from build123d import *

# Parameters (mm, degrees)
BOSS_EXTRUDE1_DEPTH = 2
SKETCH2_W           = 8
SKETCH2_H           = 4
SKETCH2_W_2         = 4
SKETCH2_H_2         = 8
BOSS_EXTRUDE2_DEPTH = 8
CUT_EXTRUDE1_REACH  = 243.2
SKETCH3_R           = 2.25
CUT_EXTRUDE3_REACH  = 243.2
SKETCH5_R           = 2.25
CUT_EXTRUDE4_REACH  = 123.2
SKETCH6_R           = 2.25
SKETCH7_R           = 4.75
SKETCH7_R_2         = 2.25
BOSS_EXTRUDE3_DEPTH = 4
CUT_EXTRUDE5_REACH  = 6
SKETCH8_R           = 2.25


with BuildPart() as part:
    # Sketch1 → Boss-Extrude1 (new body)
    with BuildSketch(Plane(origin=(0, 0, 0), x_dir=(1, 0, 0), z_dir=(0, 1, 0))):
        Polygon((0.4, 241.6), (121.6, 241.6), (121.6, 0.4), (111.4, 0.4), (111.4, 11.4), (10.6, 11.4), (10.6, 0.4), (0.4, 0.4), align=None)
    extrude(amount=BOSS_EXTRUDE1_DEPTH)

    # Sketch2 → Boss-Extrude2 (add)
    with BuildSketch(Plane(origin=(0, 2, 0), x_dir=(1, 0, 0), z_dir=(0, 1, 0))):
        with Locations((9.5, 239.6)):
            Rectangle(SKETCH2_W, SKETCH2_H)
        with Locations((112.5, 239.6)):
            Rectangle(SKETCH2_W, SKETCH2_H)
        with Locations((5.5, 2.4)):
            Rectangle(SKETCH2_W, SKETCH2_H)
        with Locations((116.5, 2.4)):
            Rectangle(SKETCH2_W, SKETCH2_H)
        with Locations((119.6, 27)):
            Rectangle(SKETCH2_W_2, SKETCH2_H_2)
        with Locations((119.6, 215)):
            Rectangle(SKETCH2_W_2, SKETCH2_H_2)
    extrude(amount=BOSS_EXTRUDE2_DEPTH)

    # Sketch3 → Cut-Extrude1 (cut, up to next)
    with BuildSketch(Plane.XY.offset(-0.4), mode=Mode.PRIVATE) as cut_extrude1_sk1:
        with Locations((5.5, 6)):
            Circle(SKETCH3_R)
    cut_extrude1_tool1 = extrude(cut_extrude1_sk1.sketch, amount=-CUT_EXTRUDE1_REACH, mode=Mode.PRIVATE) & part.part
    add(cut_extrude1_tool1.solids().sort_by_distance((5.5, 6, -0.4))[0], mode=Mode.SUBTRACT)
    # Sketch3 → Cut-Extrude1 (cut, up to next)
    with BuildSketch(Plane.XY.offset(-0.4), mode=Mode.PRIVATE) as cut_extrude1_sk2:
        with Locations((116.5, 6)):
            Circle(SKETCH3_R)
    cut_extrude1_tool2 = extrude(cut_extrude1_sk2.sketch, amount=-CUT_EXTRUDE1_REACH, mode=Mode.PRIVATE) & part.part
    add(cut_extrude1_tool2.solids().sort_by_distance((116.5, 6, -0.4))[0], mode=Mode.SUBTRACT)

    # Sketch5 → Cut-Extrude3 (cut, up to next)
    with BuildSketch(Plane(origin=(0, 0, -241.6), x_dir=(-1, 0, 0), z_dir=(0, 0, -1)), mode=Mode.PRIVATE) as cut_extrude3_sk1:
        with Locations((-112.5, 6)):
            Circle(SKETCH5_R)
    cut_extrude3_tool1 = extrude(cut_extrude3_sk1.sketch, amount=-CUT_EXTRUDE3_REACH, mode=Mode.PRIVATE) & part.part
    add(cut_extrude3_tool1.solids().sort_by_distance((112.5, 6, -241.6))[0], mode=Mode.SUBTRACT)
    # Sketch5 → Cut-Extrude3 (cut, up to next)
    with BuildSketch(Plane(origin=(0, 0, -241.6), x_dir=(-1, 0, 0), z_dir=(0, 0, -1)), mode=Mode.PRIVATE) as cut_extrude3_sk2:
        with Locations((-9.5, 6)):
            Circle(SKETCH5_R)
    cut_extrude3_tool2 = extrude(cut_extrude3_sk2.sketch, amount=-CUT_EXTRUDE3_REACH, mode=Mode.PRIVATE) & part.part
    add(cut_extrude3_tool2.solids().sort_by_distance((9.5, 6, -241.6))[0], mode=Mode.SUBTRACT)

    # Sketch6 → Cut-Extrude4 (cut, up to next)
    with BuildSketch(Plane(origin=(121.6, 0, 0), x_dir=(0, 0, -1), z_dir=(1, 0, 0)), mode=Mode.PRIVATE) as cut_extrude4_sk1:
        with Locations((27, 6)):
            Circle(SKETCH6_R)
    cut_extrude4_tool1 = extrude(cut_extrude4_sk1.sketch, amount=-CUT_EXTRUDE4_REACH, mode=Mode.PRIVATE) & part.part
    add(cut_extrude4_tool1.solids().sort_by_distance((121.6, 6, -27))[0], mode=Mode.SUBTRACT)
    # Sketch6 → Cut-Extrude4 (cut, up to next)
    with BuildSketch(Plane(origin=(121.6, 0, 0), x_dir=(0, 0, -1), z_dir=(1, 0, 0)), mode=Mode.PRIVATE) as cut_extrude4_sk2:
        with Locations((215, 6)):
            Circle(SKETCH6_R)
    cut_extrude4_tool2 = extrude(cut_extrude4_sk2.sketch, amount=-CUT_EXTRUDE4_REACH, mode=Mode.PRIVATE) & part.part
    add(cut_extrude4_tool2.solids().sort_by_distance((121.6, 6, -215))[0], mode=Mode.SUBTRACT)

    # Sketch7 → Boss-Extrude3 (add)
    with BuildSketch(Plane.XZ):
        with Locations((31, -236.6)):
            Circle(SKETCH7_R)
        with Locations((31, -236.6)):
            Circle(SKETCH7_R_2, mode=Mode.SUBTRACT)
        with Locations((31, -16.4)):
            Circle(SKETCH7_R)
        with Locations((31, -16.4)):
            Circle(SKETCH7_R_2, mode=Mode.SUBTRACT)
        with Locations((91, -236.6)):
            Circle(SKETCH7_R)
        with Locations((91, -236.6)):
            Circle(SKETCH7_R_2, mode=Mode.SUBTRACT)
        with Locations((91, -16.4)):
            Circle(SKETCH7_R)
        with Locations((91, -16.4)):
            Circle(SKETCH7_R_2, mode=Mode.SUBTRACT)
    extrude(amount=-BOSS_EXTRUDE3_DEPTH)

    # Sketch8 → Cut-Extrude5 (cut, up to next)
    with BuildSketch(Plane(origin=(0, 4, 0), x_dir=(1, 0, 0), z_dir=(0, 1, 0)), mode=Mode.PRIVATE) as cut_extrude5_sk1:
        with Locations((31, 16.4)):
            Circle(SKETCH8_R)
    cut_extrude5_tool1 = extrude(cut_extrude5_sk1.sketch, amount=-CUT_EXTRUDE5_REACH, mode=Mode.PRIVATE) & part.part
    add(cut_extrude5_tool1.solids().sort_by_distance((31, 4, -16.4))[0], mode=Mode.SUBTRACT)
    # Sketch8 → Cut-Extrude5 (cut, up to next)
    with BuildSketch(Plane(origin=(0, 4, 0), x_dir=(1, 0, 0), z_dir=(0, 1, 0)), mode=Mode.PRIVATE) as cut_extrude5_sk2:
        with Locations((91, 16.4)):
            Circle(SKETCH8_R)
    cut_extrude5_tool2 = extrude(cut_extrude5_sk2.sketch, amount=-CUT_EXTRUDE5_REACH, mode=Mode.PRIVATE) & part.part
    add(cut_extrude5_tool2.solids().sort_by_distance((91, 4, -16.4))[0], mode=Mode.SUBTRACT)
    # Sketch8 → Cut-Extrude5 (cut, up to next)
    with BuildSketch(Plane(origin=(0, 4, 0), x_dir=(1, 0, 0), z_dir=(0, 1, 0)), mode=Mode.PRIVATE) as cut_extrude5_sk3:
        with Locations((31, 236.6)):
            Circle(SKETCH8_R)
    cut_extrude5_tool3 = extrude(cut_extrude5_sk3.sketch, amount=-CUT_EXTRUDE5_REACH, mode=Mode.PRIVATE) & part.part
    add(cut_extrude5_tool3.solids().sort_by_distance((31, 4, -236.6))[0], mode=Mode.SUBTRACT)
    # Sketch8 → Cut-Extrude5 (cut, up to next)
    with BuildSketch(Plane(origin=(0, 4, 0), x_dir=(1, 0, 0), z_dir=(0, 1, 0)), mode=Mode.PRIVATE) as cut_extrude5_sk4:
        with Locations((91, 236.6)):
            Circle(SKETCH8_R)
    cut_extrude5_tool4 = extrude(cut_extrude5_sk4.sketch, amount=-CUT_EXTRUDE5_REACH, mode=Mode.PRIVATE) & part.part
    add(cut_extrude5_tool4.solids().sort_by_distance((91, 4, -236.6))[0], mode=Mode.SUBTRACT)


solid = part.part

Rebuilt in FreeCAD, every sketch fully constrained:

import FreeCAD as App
import Part
import Sketcher
from FreeCAD import Vector
Q = App.Units.Quantity


def add_polygon(sketch, points):
    """Adds a closed chain of lines whose ends are joined by coincident constraints."""
    first, n = sketch.GeometryCount, len(points)
    for a, b in zip(points, points[1:] + points[:1]):
        sketch.addGeometry(Part.LineSegment(App.Vector(*a, 0), App.Vector(*b, 0)), False)
    for i in range(n):
        sketch.addConstraint(Sketcher.Constraint("Coincident", first + i, 2, first + (i + 1) % n, 1))

doc = App.newDocument("Part")
body = doc.addObject("PartDesign::Body", "Body")

# Sketch on XZ plane
sketch1 = body.newObject("Sketcher::SketchObject", "Sketch")
sketch1.AttachmentSupport = (doc.getObject("XZ_Plane"), [""])
sketch1.MapMode = "FlatFace"
add_polygon(sketch1, [(121.6, -241.6), (0.4, -241.6), (0.4, -0.4), (10.6, -0.4), (10.6, -11.4), (111.4, -11.4), (111.4, -0.4), (121.6, -0.4)])  # lines 0-7
sketch1.addConstraint(Sketcher.Constraint("Horizontal", 0))
sketch1.addConstraint(Sketcher.Constraint("Vertical", 1))
sketch1.addConstraint(Sketcher.Constraint("Horizontal", 2))
sketch1.addConstraint(Sketcher.Constraint("Vertical", 3))
sketch1.addConstraint(Sketcher.Constraint("Horizontal", 4))
sketch1.addConstraint(Sketcher.Constraint("Vertical", 5))
sketch1.addConstraint(Sketcher.Constraint("Horizontal", 6))
sketch1.addConstraint(Sketcher.Constraint("Vertical", 7))
sketch1.addConstraint(Sketcher.Constraint("Horizontal", 2, 2, 5, 2))
sketch1.addConstraint(Sketcher.Constraint("Equal", 2, 6))
sketch1.addConstraint(Sketcher.Constraint("DistanceY", 3, 2, 3, 1, Q("11 mm")))
sketch1.addConstraint(Sketcher.Constraint("DistanceX", 0, 2, 0, 1, Q("121.2 mm")))
sketch1.addConstraint(Sketcher.Constraint("DistanceX", 2, 1, 2, 2, Q("10.2 mm")))
sketch1.addConstraint(Sketcher.Constraint("DistanceY", 1, 1, 1, 2, Q("241.2 mm")))
sketch1.addConstraint(Sketcher.Constraint("DistanceX", -1, 1, 0, 2, Q("0.4 mm")))
sketch1.addConstraint(Sketcher.Constraint("DistanceY", 0, 2, -1, 1, Q("241.6 mm")))
pad1 = body.newObject("PartDesign::Pad", "Pad")
pad1.Profile = sketch1
pad1.Length = 2
pad1.Reversed = True

# Sketch on XZ plane
sketch2 = body.newObject("Sketcher::SketchObject", "Sketch001")
sketch2.AttachmentSupport = (doc.getObject("XZ_Plane"), [""])
sketch2.MapMode = "FlatFace"
sketch2.AttachmentOffset = App.Placement(Vector(0, 0, -2), App.Rotation())
add_polygon(sketch2, [(5.5, -241.6), (5.5, -237.6), (13.5, -237.6), (13.5, -241.6)])  # lines 0-3
add_polygon(sketch2, [(108.5, -241.6), (108.5, -237.6), (116.5, -237.6), (116.5, -241.6)])  # lines 4-7
add_polygon(sketch2, [(1.5, -4.4), (1.5, -0.4), (9.5, -0.4), (9.5, -4.4)])  # lines 8-11
add_polygon(sketch2, [(112.5, -4.4), (112.5, -0.4), (120.5, -0.4), (120.5, -4.4)])  # lines 12-15
add_polygon(sketch2, [(117.6, -31), (117.6, -23), (121.6, -23), (121.6, -31)])  # lines 16-19
add_polygon(sketch2, [(117.6, -219), (117.6, -211), (121.6, -211), (121.6, -219)])  # lines 20-23
sketch2.addConstraint(Sketcher.Constraint("Vertical", 0))
sketch2.addConstraint(Sketcher.Constraint("Horizontal", 1))
sketch2.addConstraint(Sketcher.Constraint("Vertical", 2))
sketch2.addConstraint(Sketcher.Constraint("Horizontal", 3))
sketch2.addConstraint(Sketcher.Constraint("Vertical", 4))
sketch2.addConstraint(Sketcher.Constraint("Horizontal", 5))
sketch2.addConstraint(Sketcher.Constraint("Vertical", 6))
sketch2.addConstraint(Sketcher.Constraint("Horizontal", 7))
sketch2.addConstraint(Sketcher.Constraint("Vertical", 8))
sketch2.addConstraint(Sketcher.Constraint("Horizontal", 9))
sketch2.addConstraint(Sketcher.Constraint("Vertical", 10))
sketch2.addConstraint(Sketcher.Constraint("Horizontal", 11))
sketch2.addConstraint(Sketcher.Constraint("Vertical", 12))
sketch2.addConstraint(Sketcher.Constraint("Horizontal", 13))
sketch2.addConstraint(Sketcher.Constraint("Vertical", 14))
sketch2.addConstraint(Sketcher.Constraint("Horizontal", 15))
sketch2.addConstraint(Sketcher.Constraint("Vertical", 16))
sketch2.addConstraint(Sketcher.Constraint("Horizontal", 17))
sketch2.addConstraint(Sketcher.Constraint("Vertical", 18))
sketch2.addConstraint(Sketcher.Constraint("Horizontal", 19))
sketch2.addConstraint(Sketcher.Constraint("Vertical", 20))
sketch2.addConstraint(Sketcher.Constraint("Horizontal", 21))
sketch2.addConstraint(Sketcher.Constraint("Vertical", 22))
sketch2.addConstraint(Sketcher.Constraint("Horizontal", 23))
sketch2.addConstraint(Sketcher.Constraint("Horizontal", 1, 2, 4, 2))
sketch2.addConstraint(Sketcher.Constraint("Horizontal", 3, 2, 6, 2))
sketch2.addConstraint(Sketcher.Constraint("Horizontal", 9, 2, 12, 2))
sketch2.addConstraint(Sketcher.Constraint("Horizontal", 11, 2, 14, 2))
sketch2.addConstraint(Sketcher.Constraint("Vertical", 19, 2, 20, 2))
sketch2.addConstraint(Sketcher.Constraint("Vertical", 18, 2, 21, 2))
sketch2.addConstraint(Sketcher.Constraint("Equal", 3, 5))
sketch2.addConstraint(Sketcher.Constraint("Equal", 7, 9))
sketch2.addConstraint(Sketcher.Constraint("Equal", 11, 13))
sketch2.addConstraint(Sketcher.Constraint("Equal", 23, 0))
sketch2.addConstraint(Sketcher.Constraint("Equal", 6, 8))
sketch2.addConstraint(Sketcher.Constraint("Equal", 15, 16))
sketch2.addConstraint(Sketcher.Constraint("Equal", 18, 20))
sketch2.addConstraint(Sketcher.Constraint("DistanceX", 1, 1, 1, 2, Q("8 mm")))
sketch2.addConstraint(Sketcher.Constraint("DistanceX", 17, 1, 17, 2, Q("4 mm")))
sketch2.addConstraint(Sketcher.Constraint("DistanceY", 16, 2, -1, 1, Q("23 mm")))
sketch2.addConstraint(Sketcher.Constraint("DistanceY", 20, 2, -1, 1, Q("211 mm")))
sketch2.addConstraint(Sketcher.Constraint("DistanceX", 1, 2, 4, 2, Q("95 mm")))
sketch2.addConstraint(Sketcher.Constraint("DistanceX", 8, 2, 0, 2, Q("4 mm")))
sketch2.addConstraint(Sketcher.Constraint("DistanceX", 9, 2, 12, 2, Q("103 mm")))
sketch2.addConstraint(Sketcher.Constraint("DistanceX", -1, 1, 0, 2, Q("5.5 mm")))
sketch2.addConstraint(Sketcher.Constraint("DistanceY", 0, 2, -1, 1, Q("237.6 mm")))
sketch2.addConstraint(Sketcher.Constraint("DistanceY", 8, 2, -1, 1, Q("0.4 mm")))
sketch2.addConstraint(Sketcher.Constraint("DistanceX", -1, 1, 16, 2, Q("117.6 mm")))
pad2 = body.newObject("PartDesign::Pad", "Pad001")
pad2.Profile = sketch2
pad2.Length = 8
pad2.Reversed = True

# Sketch on XY plane
sketch3 = body.newObject("Sketcher::SketchObject", "Sketch002")
sketch3.AttachmentSupport = (doc.getObject("XY_Plane"), [""])
sketch3.MapMode = "FlatFace"
sketch3.AttachmentOffset = App.Placement(Vector(0, 0, -0.4), App.Rotation())
sketch3.addGeometry(Part.Circle(Vector(5.5, 6, 0), Vector(0, 0, 1), 2.25), False)
sketch3.addConstraint(Sketcher.Constraint("Diameter", 0, Q("4.5 mm")))
sketch3.addConstraint(Sketcher.Constraint("DistanceY", -1, 1, 0, 3, Q("6 mm")))
sketch3.addConstraint(Sketcher.Constraint("DistanceX", -1, 1, 0, 3, Q("5.5 mm")))
pocket1 = body.newObject("PartDesign::Pocket", "Pocket")
pocket1.Profile = sketch3
pocket1.Type = "UpToFirst"

# Sketch on XY plane
sketch4 = body.newObject("Sketcher::SketchObject", "Sketch003")
sketch4.AttachmentSupport = (doc.getObject("XY_Plane"), [""])
sketch4.MapMode = "FlatFace"
sketch4.AttachmentOffset = App.Placement(Vector(0, 0, -0.4), App.Rotation())
sketch4.addGeometry(Part.Circle(Vector(116.5, 6, 0), Vector(0, 0, 1), 2.25), False)
sketch4.addConstraint(Sketcher.Constraint("Diameter", 0, Q("4.5 mm")))
sketch4.addConstraint(Sketcher.Constraint("DistanceY", -1, 1, 0, 3, Q("6 mm")))
sketch4.addConstraint(Sketcher.Constraint("DistanceX", -1, 1, 0, 3, Q("116.5 mm")))
pocket2 = body.newObject("PartDesign::Pocket", "Pocket001")
pocket2.Profile = sketch4
pocket2.Type = "UpToFirst"

# Sketch on XY plane
sketch5 = body.newObject("Sketcher::SketchObject", "Sketch004")
sketch5.AttachmentSupport = (doc.getObject("XY_Plane"), [""])
sketch5.MapMode = "FlatFace"
sketch5.AttachmentOffset = App.Placement(Vector(0, 0, -241.6), App.Rotation())
sketch5.addGeometry(Part.Circle(Vector(112.5, 6, 0), Vector(0, 0, 1), 2.25), False)
sketch5.addConstraint(Sketcher.Constraint("Diameter", 0, Q("4.5 mm")))
sketch5.addConstraint(Sketcher.Constraint("DistanceY", -1, 1, 0, 3, Q("6 mm")))
sketch5.addConstraint(Sketcher.Constraint("DistanceX", -1, 1, 0, 3, Q("112.5 mm")))
pocket3 = body.newObject("PartDesign::Pocket", "Pocket002")
pocket3.Profile = sketch5
pocket3.Type = "UpToFirst"
pocket3.Reversed = True

# Sketch on XY plane
sketch6 = body.newObject("Sketcher::SketchObject", "Sketch005")
sketch6.AttachmentSupport = (doc.getObject("XY_Plane"), [""])
sketch6.MapMode = "FlatFace"
sketch6.AttachmentOffset = App.Placement(Vector(0, 0, -241.6), App.Rotation())
sketch6.addGeometry(Part.Circle(Vector(9.5, 6, 0), Vector(0, 0, 1), 2.25), False)
sketch6.addConstraint(Sketcher.Constraint("Diameter", 0, Q("4.5 mm")))
sketch6.addConstraint(Sketcher.Constraint("DistanceY", -1, 1, 0, 3, Q("6 mm")))
sketch6.addConstraint(Sketcher.Constraint("DistanceX", -1, 1, 0, 3, Q("9.5 mm")))
pocket4 = body.newObject("PartDesign::Pocket", "Pocket003")
pocket4.Profile = sketch6
pocket4.Type = "UpToFirst"
pocket4.Reversed = True

# Sketch on YZ plane
sketch7 = body.newObject("Sketcher::SketchObject", "Sketch006")
sketch7.AttachmentSupport = (doc.getObject("YZ_Plane"), [""])
sketch7.MapMode = "FlatFace"
sketch7.AttachmentOffset = App.Placement(Vector(0, 0, 121.6), App.Rotation())
sketch7.addGeometry(Part.Circle(Vector(6, -27, 0), Vector(0, 0, 1), 2.25), False)
sketch7.addConstraint(Sketcher.Constraint("Diameter", 0, Q("4.5 mm")))
sketch7.addConstraint(Sketcher.Constraint("DistanceX", -1, 1, 0, 3, Q("6 mm")))
sketch7.addConstraint(Sketcher.Constraint("DistanceY", 0, 3, -1, 1, Q("27 mm")))
pocket5 = body.newObject("PartDesign::Pocket", "Pocket004")
pocket5.Profile = sketch7
pocket5.Type = "UpToFirst"

# Sketch on YZ plane
sketch8 = body.newObject("Sketcher::SketchObject", "Sketch007")
sketch8.AttachmentSupport = (doc.getObject("YZ_Plane"), [""])
sketch8.MapMode = "FlatFace"
sketch8.AttachmentOffset = App.Placement(Vector(0, 0, 121.6), App.Rotation())
sketch8.addGeometry(Part.Circle(Vector(6, -215, 0), Vector(0, 0, 1), 2.25), False)
sketch8.addConstraint(Sketcher.Constraint("Diameter", 0, Q("4.5 mm")))
sketch8.addConstraint(Sketcher.Constraint("DistanceX", -1, 1, 0, 3, Q("6 mm")))
sketch8.addConstraint(Sketcher.Constraint("DistanceY", 0, 3, -1, 1, Q("215 mm")))
pocket6 = body.newObject("PartDesign::Pocket", "Pocket005")
pocket6.Profile = sketch8
pocket6.Type = "UpToFirst"

# Sketch on XZ plane
sketch9 = body.newObject("Sketcher::SketchObject", "Sketch008")
sketch9.AttachmentSupport = (doc.getObject("XZ_Plane"), [""])
sketch9.MapMode = "FlatFace"
sketch9.addGeometry(Part.Circle(Vector(31, -236.6, 0), Vector(0, 0, 1), 4.75), False)
sketch9.addGeometry(Part.Circle(Vector(31, -236.6, 0), Vector(0, 0, 1), 2.25), False)
sketch9.addGeometry(Part.Circle(Vector(31, -16.4, 0), Vector(0, 0, 1), 4.75), False)
sketch9.addGeometry(Part.Circle(Vector(31, -16.4, 0), Vector(0, 0, 1), 2.25), False)
sketch9.addGeometry(Part.Circle(Vector(91, -236.6, 0), Vector(0, 0, 1), 4.75), False)
sketch9.addGeometry(Part.Circle(Vector(91, -236.6, 0), Vector(0, 0, 1), 2.25), False)
sketch9.addGeometry(Part.Circle(Vector(91, -16.4, 0), Vector(0, 0, 1), 4.75), False)
sketch9.addGeometry(Part.Circle(Vector(91, -16.4, 0), Vector(0, 0, 1), 2.25), False)
sketch9.addConstraint(Sketcher.Constraint("Coincident", 1, 3, 0, 3))
sketch9.addConstraint(Sketcher.Constraint("Coincident", 3, 3, 2, 3))
sketch9.addConstraint(Sketcher.Constraint("Coincident", 5, 3, 4, 3))
sketch9.addConstraint(Sketcher.Constraint("Coincident", 7, 3, 6, 3))
sketch9.addConstraint(Sketcher.Constraint("Equal", 0, 2))
sketch9.addConstraint(Sketcher.Constraint("Equal", 1, 3))
sketch9.addConstraint(Sketcher.Constraint("Equal", 2, 4))
sketch9.addConstraint(Sketcher.Constraint("Equal", 3, 5))
sketch9.addConstraint(Sketcher.Constraint("Equal", 4, 6))
sketch9.addConstraint(Sketcher.Constraint("Equal", 5, 7))
sketch9.addConstraint(Sketcher.Constraint("Horizontal", 1, 3, 4, 3))
sketch9.addConstraint(Sketcher.Constraint("Horizontal", 3, 3, 6, 3))
sketch9.addConstraint(Sketcher.Constraint("Vertical", 1, 3, 2, 3))
sketch9.addConstraint(Sketcher.Constraint("Vertical", 5, 3, 6, 3))
sketch9.addConstraint(Sketcher.Constraint("Diameter", 0, Q("9.5 mm")))
sketch9.addConstraint(Sketcher.Constraint("Diameter", 1, Q("4.5 mm")))
sketch9.addConstraint(Sketcher.Constraint("DistanceX", -1, 1, 0, 3, Q("31 mm")))
sketch9.addConstraint(Sketcher.Constraint("DistanceX", -1, 1, 4, 3, Q("91 mm")))
sketch9.addConstraint(Sketcher.Constraint("DistanceY", 0, 3, -1, 1, Q("236.6 mm")))
sketch9.addConstraint(Sketcher.Constraint("DistanceY", 2, 3, -1, 1, Q("16.4 mm")))
pad3 = body.newObject("PartDesign::Pad", "Pad002")
pad3.Profile = sketch9
pad3.Length = 4
pad3.Reversed = True

# Sketch on XZ plane
sketch10 = body.newObject("Sketcher::SketchObject", "Sketch009")
sketch10.AttachmentSupport = (doc.getObject("XZ_Plane"), [""])
sketch10.MapMode = "FlatFace"
sketch10.AttachmentOffset = App.Placement(Vector(0, 0, -4), App.Rotation())
sketch10.addGeometry(Part.Circle(Vector(31, -16.4, 0), Vector(0, 0, 1), 2.25), False)
sketch10.addConstraint(Sketcher.Constraint("Diameter", 0, Q("4.5 mm")))
sketch10.addConstraint(Sketcher.Constraint("DistanceX", -1, 1, 0, 3, Q("31 mm")))
sketch10.addConstraint(Sketcher.Constraint("DistanceY", 0, 3, -1, 1, Q("16.4 mm")))
pocket7 = body.newObject("PartDesign::Pocket", "Pocket006")
pocket7.Profile = sketch10
pocket7.Length = 4
pocket7.Reversed = True

# Sketch on XZ plane
sketch11 = body.newObject("Sketcher::SketchObject", "Sketch010")
sketch11.AttachmentSupport = (doc.getObject("XZ_Plane"), [""])
sketch11.MapMode = "FlatFace"
sketch11.AttachmentOffset = App.Placement(Vector(0, 0, -4), App.Rotation())
sketch11.addGeometry(Part.Circle(Vector(91, -16.4, 0), Vector(0, 0, 1), 2.25), False)
sketch11.addConstraint(Sketcher.Constraint("Diameter", 0, Q("4.5 mm")))
sketch11.addConstraint(Sketcher.Constraint("DistanceX", -1, 1, 0, 3, Q("91 mm")))
sketch11.addConstraint(Sketcher.Constraint("DistanceY", 0, 3, -1, 1, Q("16.4 mm")))
pocket8 = body.newObject("PartDesign::Pocket", "Pocket007")
pocket8.Profile = sketch11
pocket8.Length = 4
pocket8.Reversed = True

# Sketch on XZ plane
sketch12 = body.newObject("Sketcher::SketchObject", "Sketch011")
sketch12.AttachmentSupport = (doc.getObject("XZ_Plane"), [""])
sketch12.MapMode = "FlatFace"
sketch12.AttachmentOffset = App.Placement(Vector(0, 0, -4), App.Rotation())
sketch12.addGeometry(Part.Circle(Vector(31, -236.6, 0), Vector(0, 0, 1), 2.25), False)
sketch12.addConstraint(Sketcher.Constraint("Diameter", 0, Q("4.5 mm")))
sketch12.addConstraint(Sketcher.Constraint("DistanceX", -1, 1, 0, 3, Q("31 mm")))
sketch12.addConstraint(Sketcher.Constraint("DistanceY", 0, 3, -1, 1, Q("236.6 mm")))
pocket9 = body.newObject("PartDesign::Pocket", "Pocket008")
pocket9.Profile = sketch12
pocket9.Length = 4
pocket9.Reversed = True

# Sketch on XZ plane
sketch13 = body.newObject("Sketcher::SketchObject", "Sketch012")
sketch13.AttachmentSupport = (doc.getObject("XZ_Plane"), [""])
sketch13.MapMode = "FlatFace"
sketch13.AttachmentOffset = App.Placement(Vector(0, 0, -4), App.Rotation())
sketch13.addGeometry(Part.Circle(Vector(91, -236.6, 0), Vector(0, 0, 1), 2.25), False)
sketch13.addConstraint(Sketcher.Constraint("Diameter", 0, Q("4.5 mm")))
sketch13.addConstraint(Sketcher.Constraint("DistanceX", -1, 1, 0, 3, Q("91 mm")))
sketch13.addConstraint(Sketcher.Constraint("DistanceY", 0, 3, -1, 1, Q("236.6 mm")))
pocket10 = body.newObject("PartDesign::Pocket", "Pocket009")
pocket10.Profile = sketch13
pocket10.Length = 4
pocket10.Reversed = True

doc.recompute()
